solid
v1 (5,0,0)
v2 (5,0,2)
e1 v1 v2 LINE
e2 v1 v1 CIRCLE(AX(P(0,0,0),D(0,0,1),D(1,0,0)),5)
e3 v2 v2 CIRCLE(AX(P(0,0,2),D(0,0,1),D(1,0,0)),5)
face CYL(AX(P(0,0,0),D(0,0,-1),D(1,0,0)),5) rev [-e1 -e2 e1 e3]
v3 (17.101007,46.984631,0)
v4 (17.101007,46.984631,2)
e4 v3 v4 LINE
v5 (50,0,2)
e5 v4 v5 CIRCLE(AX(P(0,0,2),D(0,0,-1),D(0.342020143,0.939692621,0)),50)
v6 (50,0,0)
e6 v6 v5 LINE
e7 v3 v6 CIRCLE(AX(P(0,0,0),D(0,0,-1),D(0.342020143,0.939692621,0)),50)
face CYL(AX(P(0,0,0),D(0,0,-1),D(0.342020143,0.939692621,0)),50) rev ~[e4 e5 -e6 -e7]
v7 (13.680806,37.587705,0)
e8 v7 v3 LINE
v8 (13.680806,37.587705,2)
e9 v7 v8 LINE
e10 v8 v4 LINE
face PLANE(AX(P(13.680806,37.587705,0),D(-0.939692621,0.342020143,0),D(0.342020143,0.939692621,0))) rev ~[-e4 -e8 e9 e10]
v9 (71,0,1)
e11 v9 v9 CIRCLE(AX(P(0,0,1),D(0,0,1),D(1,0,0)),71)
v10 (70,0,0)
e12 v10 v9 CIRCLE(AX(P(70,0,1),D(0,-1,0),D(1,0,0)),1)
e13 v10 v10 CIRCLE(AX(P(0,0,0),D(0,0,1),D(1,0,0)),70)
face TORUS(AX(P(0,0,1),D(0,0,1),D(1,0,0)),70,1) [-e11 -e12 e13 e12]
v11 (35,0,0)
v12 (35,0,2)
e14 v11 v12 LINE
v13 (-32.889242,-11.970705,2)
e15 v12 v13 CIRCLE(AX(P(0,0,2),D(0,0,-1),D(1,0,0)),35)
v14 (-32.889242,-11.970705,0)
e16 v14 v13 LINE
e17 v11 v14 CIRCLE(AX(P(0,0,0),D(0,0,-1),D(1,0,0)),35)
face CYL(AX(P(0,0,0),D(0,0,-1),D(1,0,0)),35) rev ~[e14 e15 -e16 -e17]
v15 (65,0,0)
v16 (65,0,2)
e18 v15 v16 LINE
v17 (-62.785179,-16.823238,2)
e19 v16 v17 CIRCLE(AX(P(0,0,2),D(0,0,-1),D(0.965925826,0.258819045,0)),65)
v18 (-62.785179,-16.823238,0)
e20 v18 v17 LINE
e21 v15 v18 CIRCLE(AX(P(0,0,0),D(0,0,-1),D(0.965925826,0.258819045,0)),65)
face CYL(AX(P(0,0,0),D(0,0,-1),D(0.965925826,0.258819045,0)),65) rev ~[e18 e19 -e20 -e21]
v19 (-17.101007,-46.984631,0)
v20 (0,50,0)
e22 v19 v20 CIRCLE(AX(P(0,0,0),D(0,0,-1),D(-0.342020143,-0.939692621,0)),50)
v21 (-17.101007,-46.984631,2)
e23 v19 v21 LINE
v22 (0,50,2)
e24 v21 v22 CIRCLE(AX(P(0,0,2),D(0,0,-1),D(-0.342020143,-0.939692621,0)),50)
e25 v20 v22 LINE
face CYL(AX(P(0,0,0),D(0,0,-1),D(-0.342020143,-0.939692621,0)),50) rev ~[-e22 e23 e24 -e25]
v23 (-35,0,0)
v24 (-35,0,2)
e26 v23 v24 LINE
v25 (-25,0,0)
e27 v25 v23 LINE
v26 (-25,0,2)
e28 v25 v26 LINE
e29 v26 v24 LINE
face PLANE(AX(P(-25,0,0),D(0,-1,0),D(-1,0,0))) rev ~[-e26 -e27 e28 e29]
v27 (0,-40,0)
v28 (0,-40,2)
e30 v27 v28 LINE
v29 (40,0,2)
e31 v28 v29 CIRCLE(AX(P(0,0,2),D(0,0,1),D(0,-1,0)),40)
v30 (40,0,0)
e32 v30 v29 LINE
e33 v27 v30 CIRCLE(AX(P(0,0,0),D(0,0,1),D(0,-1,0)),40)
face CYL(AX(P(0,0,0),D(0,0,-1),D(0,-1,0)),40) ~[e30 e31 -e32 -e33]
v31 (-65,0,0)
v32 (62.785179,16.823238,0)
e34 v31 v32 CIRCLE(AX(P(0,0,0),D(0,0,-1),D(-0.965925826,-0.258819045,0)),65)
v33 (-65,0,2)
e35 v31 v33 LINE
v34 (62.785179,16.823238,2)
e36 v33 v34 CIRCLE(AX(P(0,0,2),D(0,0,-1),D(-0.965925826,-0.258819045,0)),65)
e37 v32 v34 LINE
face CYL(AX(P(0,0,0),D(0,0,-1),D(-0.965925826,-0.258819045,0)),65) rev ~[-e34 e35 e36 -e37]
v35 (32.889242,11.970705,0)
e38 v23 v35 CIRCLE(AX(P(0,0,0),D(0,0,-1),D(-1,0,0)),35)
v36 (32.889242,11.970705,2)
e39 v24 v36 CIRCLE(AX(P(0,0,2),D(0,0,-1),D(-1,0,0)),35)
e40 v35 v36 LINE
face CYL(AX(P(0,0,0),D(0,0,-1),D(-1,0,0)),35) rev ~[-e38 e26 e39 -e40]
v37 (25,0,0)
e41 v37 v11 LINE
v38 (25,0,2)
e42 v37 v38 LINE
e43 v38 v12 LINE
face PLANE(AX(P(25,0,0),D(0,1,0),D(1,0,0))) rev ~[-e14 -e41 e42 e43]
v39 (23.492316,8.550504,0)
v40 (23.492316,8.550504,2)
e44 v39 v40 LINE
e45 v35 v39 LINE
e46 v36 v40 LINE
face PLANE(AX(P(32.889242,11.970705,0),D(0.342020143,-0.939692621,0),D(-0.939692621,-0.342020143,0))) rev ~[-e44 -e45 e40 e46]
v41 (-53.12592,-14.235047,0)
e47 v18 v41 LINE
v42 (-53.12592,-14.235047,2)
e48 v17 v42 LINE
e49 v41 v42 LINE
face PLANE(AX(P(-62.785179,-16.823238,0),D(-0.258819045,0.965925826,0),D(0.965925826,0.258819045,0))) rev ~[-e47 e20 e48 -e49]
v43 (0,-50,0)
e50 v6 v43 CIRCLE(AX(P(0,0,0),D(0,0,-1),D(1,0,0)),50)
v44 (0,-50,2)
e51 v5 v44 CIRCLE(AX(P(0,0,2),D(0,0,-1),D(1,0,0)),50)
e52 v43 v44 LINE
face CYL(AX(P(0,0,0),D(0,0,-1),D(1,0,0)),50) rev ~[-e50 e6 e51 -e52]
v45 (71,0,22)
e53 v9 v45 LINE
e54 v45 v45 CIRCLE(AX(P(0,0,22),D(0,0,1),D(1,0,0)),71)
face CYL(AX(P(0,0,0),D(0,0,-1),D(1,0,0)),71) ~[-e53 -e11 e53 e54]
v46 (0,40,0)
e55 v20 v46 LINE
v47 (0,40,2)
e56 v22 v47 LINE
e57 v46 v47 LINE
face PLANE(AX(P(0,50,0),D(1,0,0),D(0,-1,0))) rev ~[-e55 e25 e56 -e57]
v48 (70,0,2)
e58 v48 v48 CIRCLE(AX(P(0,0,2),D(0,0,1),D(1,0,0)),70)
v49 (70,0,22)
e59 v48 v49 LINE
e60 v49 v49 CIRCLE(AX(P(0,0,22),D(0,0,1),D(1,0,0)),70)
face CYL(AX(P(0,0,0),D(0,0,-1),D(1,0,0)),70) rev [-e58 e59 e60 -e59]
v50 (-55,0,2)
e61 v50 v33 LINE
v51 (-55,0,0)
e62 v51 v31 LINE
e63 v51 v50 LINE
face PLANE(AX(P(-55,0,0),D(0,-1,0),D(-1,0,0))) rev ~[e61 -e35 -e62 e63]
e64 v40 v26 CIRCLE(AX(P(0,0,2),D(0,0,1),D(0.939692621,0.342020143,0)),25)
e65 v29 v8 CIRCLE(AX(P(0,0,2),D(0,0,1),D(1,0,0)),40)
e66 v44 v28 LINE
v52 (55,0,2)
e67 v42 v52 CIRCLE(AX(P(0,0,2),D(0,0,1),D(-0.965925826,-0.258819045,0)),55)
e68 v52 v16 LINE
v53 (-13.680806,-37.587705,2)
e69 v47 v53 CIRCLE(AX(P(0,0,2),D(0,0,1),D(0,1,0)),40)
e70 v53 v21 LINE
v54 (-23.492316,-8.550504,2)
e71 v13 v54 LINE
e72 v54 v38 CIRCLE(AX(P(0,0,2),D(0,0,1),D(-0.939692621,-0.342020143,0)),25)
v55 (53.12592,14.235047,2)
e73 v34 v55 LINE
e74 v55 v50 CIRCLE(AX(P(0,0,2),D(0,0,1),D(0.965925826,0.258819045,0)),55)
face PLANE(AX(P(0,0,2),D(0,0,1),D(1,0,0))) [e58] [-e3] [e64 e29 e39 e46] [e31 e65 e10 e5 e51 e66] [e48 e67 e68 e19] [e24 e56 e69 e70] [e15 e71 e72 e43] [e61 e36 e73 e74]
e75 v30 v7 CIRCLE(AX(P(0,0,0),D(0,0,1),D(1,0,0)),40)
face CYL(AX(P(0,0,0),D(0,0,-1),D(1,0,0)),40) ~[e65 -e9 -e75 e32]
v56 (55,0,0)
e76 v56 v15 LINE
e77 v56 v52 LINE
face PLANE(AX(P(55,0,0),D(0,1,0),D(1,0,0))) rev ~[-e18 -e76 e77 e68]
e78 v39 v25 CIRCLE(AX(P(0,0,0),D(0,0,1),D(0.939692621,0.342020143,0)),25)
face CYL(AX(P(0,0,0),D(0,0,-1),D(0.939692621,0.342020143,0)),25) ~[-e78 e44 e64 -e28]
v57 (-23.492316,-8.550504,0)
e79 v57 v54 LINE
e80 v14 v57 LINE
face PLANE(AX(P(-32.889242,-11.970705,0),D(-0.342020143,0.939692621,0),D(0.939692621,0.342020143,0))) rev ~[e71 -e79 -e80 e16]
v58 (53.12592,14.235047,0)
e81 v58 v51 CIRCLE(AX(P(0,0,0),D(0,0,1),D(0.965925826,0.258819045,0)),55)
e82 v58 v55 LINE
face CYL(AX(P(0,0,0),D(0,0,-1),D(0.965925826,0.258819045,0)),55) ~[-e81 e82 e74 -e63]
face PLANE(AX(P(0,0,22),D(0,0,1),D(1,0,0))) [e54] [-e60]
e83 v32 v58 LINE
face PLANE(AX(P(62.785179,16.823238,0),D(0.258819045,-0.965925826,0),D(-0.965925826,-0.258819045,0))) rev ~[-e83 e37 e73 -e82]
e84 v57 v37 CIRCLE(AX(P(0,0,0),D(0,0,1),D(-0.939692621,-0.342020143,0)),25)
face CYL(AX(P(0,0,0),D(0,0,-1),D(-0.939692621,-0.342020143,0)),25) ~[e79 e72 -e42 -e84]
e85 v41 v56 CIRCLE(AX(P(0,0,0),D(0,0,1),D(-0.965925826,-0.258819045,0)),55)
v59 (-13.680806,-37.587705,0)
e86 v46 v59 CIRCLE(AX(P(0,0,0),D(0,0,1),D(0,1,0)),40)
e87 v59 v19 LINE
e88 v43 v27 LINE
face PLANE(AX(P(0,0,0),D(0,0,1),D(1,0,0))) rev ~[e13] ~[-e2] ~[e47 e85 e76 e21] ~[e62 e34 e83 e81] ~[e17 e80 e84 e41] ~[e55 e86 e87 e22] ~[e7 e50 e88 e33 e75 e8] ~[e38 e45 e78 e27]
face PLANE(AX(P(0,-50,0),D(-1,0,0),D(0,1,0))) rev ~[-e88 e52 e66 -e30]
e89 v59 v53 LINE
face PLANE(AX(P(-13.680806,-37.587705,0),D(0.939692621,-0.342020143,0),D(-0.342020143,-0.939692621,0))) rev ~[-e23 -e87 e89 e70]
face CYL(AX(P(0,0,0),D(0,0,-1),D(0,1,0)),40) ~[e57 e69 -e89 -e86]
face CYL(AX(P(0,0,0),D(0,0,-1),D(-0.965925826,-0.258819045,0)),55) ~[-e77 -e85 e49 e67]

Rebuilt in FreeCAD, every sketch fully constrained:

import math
import FreeCAD as App
import Part
import Sketcher
from FreeCAD import Vector
Q = App.Units.Quantity


def edges_at(feature, points):
    """Names of the edges that pass closest to the given points."""
    edges = feature.Shape.Edges
    near = lambda p: min(range(len(edges)), key=lambda i: edges[i].distToShape(Part.Vertex(*p))[0])
    return sorted({f"Edge{near(p) + 1}" for p in points})

doc = App.newDocument("Part")
params = doc.addObject("Spreadsheet::Sheet", "Params")
for row, (alias, value) in enumerate([
    ("sketch1_diameter", "142 mm"),
    ("sketch1_diameter2", "140 mm"),
    ("pad1_length", "22 mm"),
    ("sketch2_diameter", "140 mm"),
    ("sketch2_diameter2", "10 mm"),
    ("sketch2_radius", "65 mm"),
    ("sketch2_radius2", "55 mm"),
    ("sketch2_radius3", "35 mm"),
    ("pad2_length", "2 mm"),
    ("fillet_radius", "1 mm"),
], start=1):
    params.set(f"A{row}", alias)
    params.set(f"B{row}", "=" + value)
    params.setAlias(f"B{row}", alias)

body = doc.addObject("PartDesign::Body", "Body")

sketch1 = body.newObject("Sketcher::SketchObject", "Sketch")
sketch1.AttachmentSupport = (doc.getObject("XY_Plane"), [""])
sketch1.MapMode = "FlatFace"
sketch1.addGeometry([
    Part.Circle(Vector(0, 0, 0), Vector(0, 0, 1), 71),
    Part.Circle(Vector(0, 0, 0), Vector(0, 0, 1), 70),
], False)
sketch1.addConstraint([
    Sketcher.Constraint("Coincident", 0, 3, -1, 1),
    Sketcher.Constraint("Coincident", 1, 3, -1, 1),
    Sketcher.Constraint("Diameter", 0, 142.0),
    Sketcher.Constraint("Diameter", 1, 140.0),
])
sketch1.setExpression("Constraints[2]", "Params.sketch1_diameter")
sketch1.setExpression("Constraints[3]", "Params.sketch1_diameter2")
pad1 = body.newObject("PartDesign::Pad", "Pad")
pad1.Profile = sketch1
pad1.setExpression("Length", "Params.pad1_length")

sketch2 = body.newObject("Sketcher::SketchObject", "Sketch001")
sketch2.AttachmentSupport = (doc.getObject("XY_Plane"), [""])
sketch2.MapMode = "FlatFace"
sketch2.addGeometry([
    Part.Circle(Vector(0, 0, 0), Vector(0, 0, 1), 70),
    Part.ArcOfCircle(Part.Circle(Vector(0, 0, 0), Vector(0, 0, 1), 65), math.radians(15), math.radians(180)),
    Part.LineSegment(Vector(63, 17, 0), Vector(53, 14, 0)),
    Part.ArcOfCircle(Part.Circle(Vector(0, 0, 0), Vector(0, 0, 1), 55), math.radians(15), math.radians(180)),
    Part.LineSegment(Vector(-55, 0, 0), Vector(-65, 0, 0)),
    Part.ArcOfCircle(Part.Circle(Vector(0, 0, 0), Vector(0, 0, 1), 65), math.radians(-165), math.radians(0)),
    Part.LineSegment(Vector(-63, -17, 0), Vector(-53, -14, 0)),
    Part.ArcOfCircle(Part.Circle(Vector(0, 0, 0), Vector(0, 0, 1), 55), math.radians(-165), math.radians(0)),
    Part.LineSegment(Vector(55, 0, 0), Vector(65, 0, 0)),
    Part.ArcOfCircle(Part.Circle(Vector(0, 0, 0), Vector(0, 0, 1), 35), math.radians(20), math.radians(180)),
    Part.LineSegment(Vector(33, 12, 0), Vector(23, 9, 0)),
    Part.ArcOfCircle(Part.Circle(Vector(0, 0, 0), Vector(0, 0, 1), 25), math.radians(20), math.radians(180)),
    Part.LineSegment(Vector(-25, 0, 0), Vector(-35, 0, 0)),
    Part.ArcOfCircle(Part.Circle(Vector(0, 0, 0), Vector(0, 0, 1), 35), math.radians(-160), math.radians(0)),
    Part.LineSegment(Vector(-33, -12, 0), Vector(-23, -9, 0)),
    Part.ArcOfCircle(Part.Circle(Vector(0, 0, 0), Vector(0, 0, 1), 25), math.radians(-160), math.radians(0)),
    Part.LineSegment(Vector(25, 0, 0), Vector(35, 0, 0)),
    Part.ArcOfCircle(Part.Circle(Vector(0, 0, 0), Vector(0, 0, 1), 50), math.radians(0), math.radians(70)),
    Part.ArcOfCircle(Part.Circle(Vector(0, 0, 0), Vector(0, 0, 1), 50), math.radians(-90), math.radians(0)),
    Part.LineSegment(Vector(0, -50, 0), Vector(0, -40, 0)),
    Part.ArcOfCircle(Part.Circle(Vector(0, 0, 0), Vector(0, 0, 1), 40), math.radians(-90), math.radians(0)),
    Part.ArcOfCircle(Part.Circle(Vector(0, 0, 0), Vector(0, 0, 1), 40), math.radians(0), math.radians(70)),
    Part.LineSegment(Vector(14, 38, 0), Vector(17, 47, 0)),
    Part.ArcOfCircle(Part.Circle(Vector(0, 0, 0), Vector(0, 0, 1), 40), math.radians(90), math.radians(250)),
    Part.LineSegment(Vector(-14, -38, 0), Vector(-17, -47, 0)),
    Part.ArcOfCircle(Part.Circle(Vector(0, 0, 0), Vector(0, 0, 1), 50), math.radians(90), math.radians(250)),
    Part.LineSegment(Vector(0, 50, 0), Vector(0, 40, 0)),
    Part.Circle(Vector(0, 0, 0), Vector(0, 0, 1), 5),
], False)
sketch2.addConstraint([
    Sketcher.Constraint("Coincident", 1, 1, 2, 1),
    Sketcher.Constraint("Coincident", 2, 2, 3, 1),
    Sketcher.Constraint("Coincident", 3, 2, 4, 1),
    Sketcher.Constraint("Coincident", 4, 2, 1, 2),
    Sketcher.Constraint("Coincident", 5, 1, 6, 1),
    Sketcher.Constraint("Coincident", 6, 2, 7, 1),
    Sketcher.Constraint("Coincident", 7, 2, 8, 1),
    Sketcher.Constraint("Coincident", 8, 2, 5, 2),
    Sketcher.Constraint("Coincident", 9, 1, 10, 1),
    Sketcher.Constraint("Coincident", 10, 2, 11, 1),
    Sketcher.Constraint("Coincident", 11, 2, 12, 1),
    Sketcher.Constraint("Coincident", 12, 2, 9, 2),
    Sketcher.Constraint("Coincident", 13, 1, 14, 1),
    Sketcher.Constraint("Coincident", 14, 2, 15, 1),
    Sketcher.Constraint("Coincident", 15, 2, 16, 1),
    Sketcher.Constraint("Coincident", 16, 2, 13, 2),
    Sketcher.Constraint("Tangent", 17, 1, 18, 2),
    Sketcher.Constraint("Coincident", 18, 1, 19, 1),
    Sketcher.Constraint("Coincident", 19, 2, 20, 1),
    Sketcher.Constraint("Tangent", 20, 2, 21, 1),
    Sketcher.Constraint("Coincident", 21, 2, 22, 1),
    Sketcher.Constraint("Coincident", 22, 2, 17, 2),
    Sketcher.Constraint("Coincident", 23, 2, 24, 1),
    Sketcher.Constraint("Coincident", 24, 2, 25, 2),
    Sketcher.Constraint("Coincident", 25, 1, 26, 1),
    Sketcher.Constraint("Coincident", 26, 2, 23, 1),
    Sketcher.Constraint("Horizontal", 4),
    Sketcher.Constraint("Horizontal", 8),
    Sketcher.Constraint("Horizontal", 12),
    Sketcher.Constraint("Horizontal", 16),
    Sketcher.Constraint("Vertical", 19),
    Sketcher.Constraint("Vertical", 26),
    Sketcher.Constraint("Coincident", 0, 3, -1, 1),
    Sketcher.Constraint("Coincident", 1, 3, -1, 1),
    Sketcher.Constraint("Coincident", 3, 3, -1, 1),
    Sketcher.Constraint("Coincident", 5, 3, -1, 1),
    Sketcher.Constraint("Coincident", 7, 3, -1, 1),
    Sketcher.Constraint("Coincident", 9, 3, -1, 1),
    Sketcher.Constraint("Coincident", 11, 3, -1, 1),
    Sketcher.Constraint("Coincident", 13, 3, -1, 1),
    Sketcher.Constraint("Coincident", 15, 3, -1, 1),
    Sketcher.Constraint("Coincident", 17, 3, -1, 1),
    Sketcher.Constraint("Coincident", 20, 3, -1, 1),
    Sketcher.Constraint("Coincident", 23, 3, -1, 1),
    Sketcher.Constraint("Coincident", 25, 3, -1, 1),
    Sketcher.Constraint("Coincident", 27, 3, -1, 1),
    Sketcher.Constraint("Equal", 1, 5),
    Sketcher.Constraint("Equal", 3, 7),
    Sketcher.Constraint("Equal", 9, 13),
    Sketcher.Constraint("Equal", 11, 15),
    Sketcher.Constraint("Equal", 17, 18),
    Sketcher.Constraint("Equal", 20, 21),
    Sketcher.Constraint("Equal", 21, 23),
    Sketcher.Constraint("Equal", 18, 25),
    Sketcher.Constraint("PointOnObject", 3, 2, -1),
    Sketcher.Constraint("PointOnObject", 7, 2, -1),
    Sketcher.Constraint("PointOnObject", 11, 2, -1),
    Sketcher.Constraint("PointOnObject", 15, 2, -1),
    Sketcher.Constraint("PointOnObject", 17, 1, -1),
    Sketcher.Constraint("PointOnObject", 18, 1, -2),
    Sketcher.Constraint("PointOnObject", 20, 2, -1),
    Sketcher.Constraint("PointOnObject", 25, 1, -2),
    Sketcher.Constraint("Parallel", 2, 6),
    Sketcher.Constraint("Parallel", 10, 14),
    Sketcher.Constraint("Parallel", 22, 24),
    Sketcher.Constraint("Equal", 8, 12),
    Sketcher.Constraint("Equal", 16, 19),
    Sketcher.Constraint("Diameter", 0, 140.0),
    Sketcher.Constraint("Diameter", 27, 10.0),
    Sketcher.Constraint("Radius", 1, 65.0),
    Sketcher.Constraint("Radius", 3, 55.0),
    Sketcher.Constraint("Radius", 9, 35.0),
    Sketcher.Constraint("Radius", 17, 50.0),
    Sketcher.Constraint("Angle", 2, Q("-165 deg")),
    Sketcher.Constraint("Angle", 10, Q("-160 deg")),
    Sketcher.Constraint("Angle", 22, Q("70 deg")),
    Sketcher.Constraint("DistanceY", 9, 1, 21, 2, 25.617),
    Sketcher.Constraint("DistanceY", 23, 2, 13, 1, 25.617),
    Sketcher.Constraint("DistanceX", -1, 1, 1, 1, 62.785179),
    Sketcher.Constraint("DistanceX", 5, 1, -1, 1, 62.785179),
    Sketcher.Constraint("DistanceX", -1, 1, 9, 1, 32.889242),
    Sketcher.Constraint("DistanceX", 13, 1, -1, 1, 32.889242),
])
sketch2.setExpression("Constraints[67]", "Params.sketch2_diameter")
sketch2.setExpression("Constraints[68]", "Params.sketch2_diameter2")
sketch2.setExpression("Constraints[69]", "Params.sketch2_radius")
sketch2.setExpression("Constraints[70]", "Params.sketch2_radius2")
sketch2.setExpression("Constraints[71]", "Params.sketch2_radius3")
pad2 = body.newObject("PartDesign::Pad", "Pad001")
pad2.Profile = sketch2
pad2.setExpression("Length", "Params.pad2_length")
doc.recompute()

fillet = body.newObject("PartDesign::Fillet", "Fillet")
fillet.Base = (pad2, edges_at(pad2, [(-71, 0, 0)]))
fillet.setExpression("Radius", "Params.fillet_radius")

doc.recompute()
